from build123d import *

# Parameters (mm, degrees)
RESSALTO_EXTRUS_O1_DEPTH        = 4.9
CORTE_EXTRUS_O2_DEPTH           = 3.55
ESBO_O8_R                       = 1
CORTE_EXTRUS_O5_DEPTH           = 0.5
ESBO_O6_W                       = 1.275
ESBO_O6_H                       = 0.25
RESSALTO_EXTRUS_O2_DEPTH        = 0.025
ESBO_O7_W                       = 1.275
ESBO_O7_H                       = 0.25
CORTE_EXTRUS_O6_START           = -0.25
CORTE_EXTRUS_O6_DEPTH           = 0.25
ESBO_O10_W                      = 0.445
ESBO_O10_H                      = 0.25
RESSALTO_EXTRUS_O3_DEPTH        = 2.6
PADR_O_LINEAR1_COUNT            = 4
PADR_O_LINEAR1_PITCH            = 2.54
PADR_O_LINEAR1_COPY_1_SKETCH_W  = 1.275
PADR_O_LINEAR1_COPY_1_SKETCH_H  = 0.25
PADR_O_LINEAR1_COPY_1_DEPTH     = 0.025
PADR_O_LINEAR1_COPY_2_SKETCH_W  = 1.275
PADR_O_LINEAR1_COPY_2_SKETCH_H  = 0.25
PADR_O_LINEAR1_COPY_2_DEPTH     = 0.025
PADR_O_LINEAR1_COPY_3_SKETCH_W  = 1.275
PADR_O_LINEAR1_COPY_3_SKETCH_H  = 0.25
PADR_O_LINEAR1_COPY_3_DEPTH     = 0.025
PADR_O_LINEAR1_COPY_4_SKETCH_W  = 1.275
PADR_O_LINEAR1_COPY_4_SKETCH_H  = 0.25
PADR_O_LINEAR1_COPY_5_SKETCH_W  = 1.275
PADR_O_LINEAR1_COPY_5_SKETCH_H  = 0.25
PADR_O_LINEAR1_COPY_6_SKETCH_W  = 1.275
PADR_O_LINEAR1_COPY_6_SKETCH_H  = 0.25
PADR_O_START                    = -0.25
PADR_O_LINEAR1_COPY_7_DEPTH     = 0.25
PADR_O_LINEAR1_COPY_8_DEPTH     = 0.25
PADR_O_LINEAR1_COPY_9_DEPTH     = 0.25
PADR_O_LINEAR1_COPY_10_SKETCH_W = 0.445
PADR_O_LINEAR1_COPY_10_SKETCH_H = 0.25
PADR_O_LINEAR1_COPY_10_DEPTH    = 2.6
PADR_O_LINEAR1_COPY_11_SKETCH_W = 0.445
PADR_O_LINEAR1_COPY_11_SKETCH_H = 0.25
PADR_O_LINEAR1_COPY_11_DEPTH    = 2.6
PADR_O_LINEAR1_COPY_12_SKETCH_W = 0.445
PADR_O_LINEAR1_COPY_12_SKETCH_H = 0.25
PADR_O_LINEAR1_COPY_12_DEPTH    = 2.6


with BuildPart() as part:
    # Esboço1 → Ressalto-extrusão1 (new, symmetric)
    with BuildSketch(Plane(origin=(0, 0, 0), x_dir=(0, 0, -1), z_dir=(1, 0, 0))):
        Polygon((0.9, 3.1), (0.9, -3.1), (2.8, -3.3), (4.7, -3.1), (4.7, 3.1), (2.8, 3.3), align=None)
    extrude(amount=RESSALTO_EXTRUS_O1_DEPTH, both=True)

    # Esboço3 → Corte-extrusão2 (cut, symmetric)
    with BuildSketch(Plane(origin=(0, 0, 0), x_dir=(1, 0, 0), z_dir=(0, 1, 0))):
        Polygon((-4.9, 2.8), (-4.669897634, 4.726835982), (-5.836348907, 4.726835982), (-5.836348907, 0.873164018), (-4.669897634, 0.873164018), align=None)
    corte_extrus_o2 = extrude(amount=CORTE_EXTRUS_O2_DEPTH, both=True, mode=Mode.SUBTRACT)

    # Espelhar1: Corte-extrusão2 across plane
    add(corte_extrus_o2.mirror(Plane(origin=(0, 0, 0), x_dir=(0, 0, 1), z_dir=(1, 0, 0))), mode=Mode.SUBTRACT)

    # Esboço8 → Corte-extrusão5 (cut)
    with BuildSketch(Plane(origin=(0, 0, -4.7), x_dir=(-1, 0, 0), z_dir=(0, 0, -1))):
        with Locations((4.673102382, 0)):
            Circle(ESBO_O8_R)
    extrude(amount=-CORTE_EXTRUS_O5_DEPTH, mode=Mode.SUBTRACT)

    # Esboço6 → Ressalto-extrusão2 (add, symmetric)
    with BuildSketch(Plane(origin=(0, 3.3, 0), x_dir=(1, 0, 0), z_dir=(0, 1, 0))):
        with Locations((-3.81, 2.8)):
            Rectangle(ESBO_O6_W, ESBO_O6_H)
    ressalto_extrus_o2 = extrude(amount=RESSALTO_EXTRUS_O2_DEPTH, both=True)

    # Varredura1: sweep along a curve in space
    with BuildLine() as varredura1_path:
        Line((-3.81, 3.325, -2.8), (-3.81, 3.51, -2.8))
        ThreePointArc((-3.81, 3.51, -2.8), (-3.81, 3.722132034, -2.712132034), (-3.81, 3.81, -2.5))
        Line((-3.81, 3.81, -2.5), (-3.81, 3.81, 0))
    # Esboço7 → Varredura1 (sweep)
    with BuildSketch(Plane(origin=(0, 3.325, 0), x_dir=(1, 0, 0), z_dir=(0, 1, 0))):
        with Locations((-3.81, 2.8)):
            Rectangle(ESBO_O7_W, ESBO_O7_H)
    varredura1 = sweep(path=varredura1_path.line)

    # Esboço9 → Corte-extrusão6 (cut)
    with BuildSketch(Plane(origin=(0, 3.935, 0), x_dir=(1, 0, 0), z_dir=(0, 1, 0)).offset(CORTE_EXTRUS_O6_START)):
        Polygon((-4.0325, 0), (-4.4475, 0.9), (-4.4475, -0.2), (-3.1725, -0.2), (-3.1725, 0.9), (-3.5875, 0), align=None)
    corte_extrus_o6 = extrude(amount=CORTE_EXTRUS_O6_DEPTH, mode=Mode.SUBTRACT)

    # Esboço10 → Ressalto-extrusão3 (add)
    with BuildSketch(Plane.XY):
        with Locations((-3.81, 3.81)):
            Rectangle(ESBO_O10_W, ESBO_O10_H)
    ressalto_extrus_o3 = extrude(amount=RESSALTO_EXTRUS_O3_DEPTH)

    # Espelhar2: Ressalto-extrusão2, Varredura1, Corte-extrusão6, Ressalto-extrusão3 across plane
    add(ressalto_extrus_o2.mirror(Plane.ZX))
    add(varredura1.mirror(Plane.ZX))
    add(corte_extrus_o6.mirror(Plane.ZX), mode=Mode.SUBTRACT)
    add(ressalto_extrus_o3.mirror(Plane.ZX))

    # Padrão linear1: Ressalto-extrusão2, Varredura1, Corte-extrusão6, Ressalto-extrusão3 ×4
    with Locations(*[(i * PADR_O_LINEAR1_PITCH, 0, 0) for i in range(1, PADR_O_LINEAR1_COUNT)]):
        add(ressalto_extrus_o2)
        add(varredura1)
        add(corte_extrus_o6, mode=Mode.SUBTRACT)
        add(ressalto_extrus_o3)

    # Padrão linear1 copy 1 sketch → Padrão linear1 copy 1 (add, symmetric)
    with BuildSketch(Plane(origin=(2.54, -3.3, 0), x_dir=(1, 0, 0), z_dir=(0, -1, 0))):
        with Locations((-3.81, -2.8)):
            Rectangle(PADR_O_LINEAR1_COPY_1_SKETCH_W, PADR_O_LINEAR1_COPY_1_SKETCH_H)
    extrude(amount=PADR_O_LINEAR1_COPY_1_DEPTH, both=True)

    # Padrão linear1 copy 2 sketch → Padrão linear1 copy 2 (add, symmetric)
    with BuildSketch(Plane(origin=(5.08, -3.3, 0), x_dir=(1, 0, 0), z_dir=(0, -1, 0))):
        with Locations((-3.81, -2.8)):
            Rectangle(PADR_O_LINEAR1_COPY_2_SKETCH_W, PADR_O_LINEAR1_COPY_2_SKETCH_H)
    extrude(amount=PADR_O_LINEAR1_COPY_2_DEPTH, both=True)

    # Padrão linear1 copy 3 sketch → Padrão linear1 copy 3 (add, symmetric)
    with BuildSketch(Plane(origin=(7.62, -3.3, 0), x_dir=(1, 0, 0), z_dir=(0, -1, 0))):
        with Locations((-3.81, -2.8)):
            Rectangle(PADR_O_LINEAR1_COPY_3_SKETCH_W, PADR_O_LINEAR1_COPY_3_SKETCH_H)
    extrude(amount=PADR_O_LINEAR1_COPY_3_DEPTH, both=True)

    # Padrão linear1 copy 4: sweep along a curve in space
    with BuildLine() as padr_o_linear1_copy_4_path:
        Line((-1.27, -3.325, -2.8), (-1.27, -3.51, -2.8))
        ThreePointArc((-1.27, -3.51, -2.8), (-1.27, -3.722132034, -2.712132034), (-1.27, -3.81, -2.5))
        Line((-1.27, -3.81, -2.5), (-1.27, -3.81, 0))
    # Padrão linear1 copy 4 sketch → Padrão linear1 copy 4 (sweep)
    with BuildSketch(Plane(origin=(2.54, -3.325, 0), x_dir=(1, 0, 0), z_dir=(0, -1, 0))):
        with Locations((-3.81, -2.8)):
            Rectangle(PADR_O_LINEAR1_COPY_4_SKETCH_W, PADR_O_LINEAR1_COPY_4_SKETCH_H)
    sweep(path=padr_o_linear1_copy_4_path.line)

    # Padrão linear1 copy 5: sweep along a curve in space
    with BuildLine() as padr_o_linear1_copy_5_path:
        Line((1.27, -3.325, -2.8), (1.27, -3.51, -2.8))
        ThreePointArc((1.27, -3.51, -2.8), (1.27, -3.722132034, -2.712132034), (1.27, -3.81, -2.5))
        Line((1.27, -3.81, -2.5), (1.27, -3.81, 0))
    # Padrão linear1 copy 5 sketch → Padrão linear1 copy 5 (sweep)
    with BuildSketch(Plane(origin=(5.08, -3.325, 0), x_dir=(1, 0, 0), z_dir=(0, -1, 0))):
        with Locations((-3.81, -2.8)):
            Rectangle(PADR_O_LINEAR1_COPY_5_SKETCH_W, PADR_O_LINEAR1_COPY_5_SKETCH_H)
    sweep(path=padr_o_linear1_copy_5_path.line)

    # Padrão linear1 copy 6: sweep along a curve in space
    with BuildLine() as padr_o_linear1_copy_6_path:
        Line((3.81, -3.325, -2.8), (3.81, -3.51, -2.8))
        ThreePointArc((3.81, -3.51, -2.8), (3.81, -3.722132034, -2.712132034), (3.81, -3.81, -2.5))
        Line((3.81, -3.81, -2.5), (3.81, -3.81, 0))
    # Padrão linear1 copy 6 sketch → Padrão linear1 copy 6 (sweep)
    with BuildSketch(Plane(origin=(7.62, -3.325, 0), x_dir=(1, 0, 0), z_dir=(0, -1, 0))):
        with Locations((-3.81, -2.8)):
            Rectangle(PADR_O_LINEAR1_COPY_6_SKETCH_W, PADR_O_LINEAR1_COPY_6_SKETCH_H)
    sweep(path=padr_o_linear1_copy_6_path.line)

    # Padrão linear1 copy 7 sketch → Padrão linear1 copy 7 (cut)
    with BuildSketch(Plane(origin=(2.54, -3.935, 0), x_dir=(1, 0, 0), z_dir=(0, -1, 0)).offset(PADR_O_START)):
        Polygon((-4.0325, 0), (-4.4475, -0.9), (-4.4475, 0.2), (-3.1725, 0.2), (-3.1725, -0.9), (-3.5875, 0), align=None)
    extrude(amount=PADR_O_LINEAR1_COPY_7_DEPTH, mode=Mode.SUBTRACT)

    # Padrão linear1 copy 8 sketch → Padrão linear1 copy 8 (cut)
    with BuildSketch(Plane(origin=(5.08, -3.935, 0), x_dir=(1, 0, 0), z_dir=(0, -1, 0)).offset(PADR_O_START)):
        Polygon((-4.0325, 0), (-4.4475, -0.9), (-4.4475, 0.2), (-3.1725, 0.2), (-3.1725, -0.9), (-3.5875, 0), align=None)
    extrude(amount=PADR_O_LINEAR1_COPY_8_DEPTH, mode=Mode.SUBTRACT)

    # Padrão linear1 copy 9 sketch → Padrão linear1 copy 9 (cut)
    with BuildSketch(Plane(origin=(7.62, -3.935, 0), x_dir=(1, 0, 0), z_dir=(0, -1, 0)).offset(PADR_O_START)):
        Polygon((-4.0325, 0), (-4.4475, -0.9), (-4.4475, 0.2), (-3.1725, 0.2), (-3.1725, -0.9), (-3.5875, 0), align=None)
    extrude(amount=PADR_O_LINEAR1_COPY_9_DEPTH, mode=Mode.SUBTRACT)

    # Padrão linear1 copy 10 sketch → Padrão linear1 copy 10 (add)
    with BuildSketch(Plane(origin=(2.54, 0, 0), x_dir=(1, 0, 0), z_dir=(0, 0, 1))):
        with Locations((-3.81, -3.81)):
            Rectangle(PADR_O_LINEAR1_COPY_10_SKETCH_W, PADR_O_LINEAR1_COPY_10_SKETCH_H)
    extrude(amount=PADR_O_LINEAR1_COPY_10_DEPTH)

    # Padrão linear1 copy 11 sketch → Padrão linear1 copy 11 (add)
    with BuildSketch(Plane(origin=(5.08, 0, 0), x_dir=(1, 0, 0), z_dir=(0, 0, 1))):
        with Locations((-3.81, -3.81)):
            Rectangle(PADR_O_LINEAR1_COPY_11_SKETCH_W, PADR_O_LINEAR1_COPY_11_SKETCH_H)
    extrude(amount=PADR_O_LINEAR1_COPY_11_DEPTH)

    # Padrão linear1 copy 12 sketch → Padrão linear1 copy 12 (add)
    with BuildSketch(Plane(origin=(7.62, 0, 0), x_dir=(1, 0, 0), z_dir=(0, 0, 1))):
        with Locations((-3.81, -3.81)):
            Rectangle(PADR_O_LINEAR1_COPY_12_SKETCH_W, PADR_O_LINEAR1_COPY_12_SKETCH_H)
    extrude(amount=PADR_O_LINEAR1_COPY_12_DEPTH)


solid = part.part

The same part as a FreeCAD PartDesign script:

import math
import FreeCAD as App
import Part
import Sketcher

V = App.Vector
Q = App.Units.Quantity


def add_polygon(sketch, points):
    """Adds a closed chain of lines whose ends are joined by coincident constraints."""
    first, n = sketch.GeometryCount, len(points)
    for a, b in zip(points, points[1:] + points[:1]):
        sketch.addGeometry(Part.LineSegment(App.Vector(*a, 0), App.Vector(*b, 0)), False)
    for i in range(n):
        sketch.addConstraint(Sketcher.Constraint("Coincident", first + i, 2, first + (i + 1) % n, 1))

doc = App.newDocument("Part")
body = doc.addObject("PartDesign::Body", "Body")

sketch1 = body.newObject("Sketcher::SketchObject", "Sketch")
sketch1.AttachmentSupport = (doc.getObject("YZ_Plane"), [""])
sketch1.MapMode = "FlatFace"
add_polygon(sketch1, [(3.1, -0.9), (-3.1, -0.9), (-3.3, -2.8), (-3.1, -4.7), (3.1, -4.7), (3.3, -2.8)])
sketch1.addConstraint(Sketcher.Constraint("Horizontal", 0))
sketch1.addConstraint(Sketcher.Constraint("Horizontal", 3))
sketch1.addConstraint(Sketcher.Constraint("Symmetric", 1, 2, 4, 2, -2))
sketch1.addConstraint(Sketcher.Constraint("Parallel", 1, 4))
sketch1.addConstraint(Sketcher.Constraint("Parallel", 2, 5))
sketch1.addConstraint(Sketcher.Constraint("Vertical", 0, 2, 2, 2))
sketch1.addConstraint(Sketcher.Constraint("Vertical", 3, 2, 5, 2))
sketch1.addConstraint(Sketcher.Constraint("DistanceX", 0, 2, 0, 1, 6.2))
sketch1.addConstraint(Sketcher.Constraint("DistanceY", 0, 2, -1, 1, 0.9))
sketch1.addConstraint(Sketcher.Constraint("DistanceX", 1, 2, -1, 1, 3.3))
sketch1.addConstraint(Sketcher.Constraint("DistanceY", 1, 2, -1, 1, 2.8))
pad1 = body.newObject("PartDesign::Pad", "Pad")
pad1.Profile = sketch1
pad1.Length = 9.8
pad1.Midplane = True

sketch2 = body.newObject("Sketcher::SketchObject", "Sketch001")
sketch2.AttachmentSupport = (doc.getObject("XZ_Plane"), [""])
sketch2.MapMode = "FlatFace"
add_polygon(sketch2, [(-4.9, -2.8), (-4.7, -4.7), (-5.8, -4.7), (-5.8, -0.9), (-4.7, -0.9)])
sketch2.addConstraint(Sketcher.Constraint("Horizontal", 1))
sketch2.addConstraint(Sketcher.Constraint("Vertical", 2))
sketch2.addConstraint(Sketcher.Constraint("Horizontal", 3))
sketch2.addConstraint(Sketcher.Constraint("Vertical", 0, 2, 3, 2))
sketch2.addConstraint(Sketcher.Constraint("Equal", 0, 4))
sketch2.addConstraint(Sketcher.Constraint("DistanceX", 4, 2, -1, 1, 4.9))
sketch2.addConstraint(Sketcher.Constraint("DistanceY", 4, 2, -1, 1, 2.8))
sketch2.addConstraint(Sketcher.Constraint("Angle", 0, Q("-83.19 deg")))
sketch2.addConstraint(Sketcher.Constraint("DistanceX", 1, 2, 1, 1, 1.166451))
sketch2.addConstraint(Sketcher.Constraint("DistanceY", 2, 1, 2, 2, 3.853672))
pocket1 = body.newObject("PartDesign::Pocket", "Pocket")
pocket1.Profile = sketch2
pocket1.Length = 7.1
pocket1.Midplane = True
doc.recompute()

mirrored = body.newObject("PartDesign::Mirrored", "Mirrored")
mirrored.Originals = [pocket1]
mirrored.MirrorPlane = (doc.getObject("YZ_Plane"), [""])
body.Tip = mirrored

sketch3 = body.newObject("Sketcher::SketchObject", "Sketch002")
sketch3.AttachmentSupport = (doc.getObject("XY_Plane"), [""])
sketch3.MapMode = "FlatFace"
sketch3.AttachmentOffset = App.Placement(V(0, 0, -4.7), App.Rotation())
sketch3.addGeometry(Part.Circle(V(-4.7, 0, 0), V(0, 0, 1), 1), False)
sketch3.addConstraint(Sketcher.Constraint("PointOnObject", 0, 3, -1))
sketch3.addConstraint(Sketcher.Constraint("Diameter", 0, 2.0))
sketch3.addConstraint(Sketcher.Constraint("DistanceX", 0, 3, -1, 1, 4.673102))
pocket2 = body.newObject("PartDesign::Pocket", "Pocket001")
pocket2.Profile = sketch3
pocket2.Length = 0.5
pocket2.Reversed = True

sketch4 = body.newObject("Sketcher::SketchObject", "Sketch003")
sketch4.AttachmentSupport = (doc.getObject("XZ_Plane"), [""])
sketch4.MapMode = "FlatFace"
sketch4.AttachmentOffset = App.Placement(V(0, 0, -3.3), App.Rotation())
add_polygon(sketch4, [(-4.45, -2.92), (-4.45, -2.67), (-3.17, -2.67), (-3.17, -2.92)])
sketch4.addConstraint(Sketcher.Constraint("Vertical", 0))
sketch4.addConstraint(Sketcher.Constraint("Horizontal", 1))
sketch4.addConstraint(Sketcher.Constraint("Vertical", 2))
sketch4.addConstraint(Sketcher.Constraint("Horizontal", 3))
sketch4.addConstraint(Sketcher.Constraint("DistanceY", 0, 1, 0, 2, 0.25))
sketch4.addConstraint(Sketcher.Constraint("DistanceX", 1, 1, 1, 2, 1.275))
sketch4.addConstraint(Sketcher.Constraint("DistanceY", 0, 2, -1, 1, 2.675))
sketch4.addConstraint(Sketcher.Constraint("DistanceX", 0, 2, -1, 1, 4.4475))
pad2 = body.newObject("PartDesign::Pad", "Pad001")
pad2.Profile = sketch4
pad2.Length = 0.05
pad2.Midplane = True

sketch5 = body.newObject("Sketcher::SketchObject", "Sketch004")
sketch5.AttachmentSupport = (doc.getObject("XZ_Plane"), [""])
sketch5.MapMode = "FlatFace"
sketch5.AttachmentOffset = App.Placement(V(0, 0, -3.325), App.Rotation())
add_polygon(sketch5, [(-4.45, -2.92), (-4.45, -2.67), (-3.17, -2.67), (-3.17, -2.92)])
sketch5.addConstraint(Sketcher.Constraint("Vertical", 0))
sketch5.addConstraint(Sketcher.Constraint("Horizontal", 1))
sketch5.addConstraint(Sketcher.Constraint("Vertical", 2))
sketch5.addConstraint(Sketcher.Constraint("Horizontal", 3))
sketch5.addConstraint(Sketcher.Constraint("DistanceY", 0, 1, 0, 2, 0.25))
sketch5.addConstraint(Sketcher.Constraint("DistanceX", 1, 1, 1, 2, 1.275))
sketch5.addConstraint(Sketcher.Constraint("DistanceY", 0, 2, -1, 1, 2.675))
sketch5.addConstraint(Sketcher.Constraint("DistanceX", 0, 2, -1, 1, 4.4475))

sketch6 = body.newObject("Sketcher::SketchObject", "Sketch005")
sketch6.AttachmentSupport = (doc.getObject("YZ_Plane"), [""])
sketch6.MapMode = "FlatFace"
sketch6.AttachmentOffset = App.Placement(V(0, 0, -3.81), App.Rotation())
sketch6.addGeometry(Part.LineSegment(V(3.33, -2.8, 0), V(3.51, -2.8, 0)), False)
sketch6.addGeometry(Part.ArcOfCircle(Part.Circle(V(3.51, -2.5, 0), V(0, 0, 1), 0.3), math.radians(-90), math.radians(0)), False)
sketch6.addGeometry(Part.LineSegment(V(3.81, -2.5, 0), V(3.81, 0, 0)), False)
sketch6.addConstraint(Sketcher.Constraint("Tangent", 0, 2, 1, 1))
sketch6.addConstraint(Sketcher.Constraint("Tangent", 1, 2, 2, 1))
sketch6.addConstraint(Sketcher.Constraint("Horizontal", 0))
sketch6.addConstraint(Sketcher.Constraint("Vertical", 2))
sketch6.addConstraint(Sketcher.Constraint("PointOnObject", 2, 2, -1))
sketch6.addConstraint(Sketcher.Constraint("Radius", 1, 0.3))
sketch6.addConstraint(Sketcher.Constraint("DistanceY", 2, 1, 2, 2, 2.5))
sketch6.addConstraint(Sketcher.Constraint("DistanceX", 0, 1, 0, 2, 0.185))
sketch6.addConstraint(Sketcher.Constraint("DistanceX", -1, 1, 1, 3, 3.51))
doc.recompute()

additivepipe = body.newObject("PartDesign::AdditivePipe", "AdditivePipe")
additivepipe.Profile = sketch5
additivepipe.Spine = (sketch6, ["Edge1", "Edge2", "Edge3"])

sketch7 = body.newObject("Sketcher::SketchObject", "Sketch006")
sketch7.AttachmentSupport = (doc.getObject("XZ_Plane"), [""])
sketch7.MapMode = "FlatFace"
sketch7.AttachmentOffset = App.Placement(V(0, 0, -3.685), App.Rotation())
add_polygon(sketch7, [(-4.03, 0), (-4.45, -0.9), (-4.45, 0.2), (-3.17, 0.2), (-3.17, -0.9), (-3.59, 0)])
sketch7.addConstraint(Sketcher.Constraint("Vertical", 1))
sketch7.addConstraint(Sketcher.Constraint("Horizontal", 2))
sketch7.addConstraint(Sketcher.Constraint("Vertical", 3))
sketch7.addConstraint(Sketcher.Constraint("Horizontal", 5))
sketch7.addConstraint(Sketcher.Constraint("PointOnObject", 4, 2, -1))
sketch7.addConstraint(Sketcher.Constraint("Horizontal", 0, 2, 3, 2))
sketch7.addConstraint(Sketcher.Constraint("Equal", 0, 4))
sketch7.addConstraint(Sketcher.Constraint("DistanceY", 1, 1, 1, 2, 1.1))
sketch7.addConstraint(Sketcher.Constraint("DistanceY", 0, 2, -1, 1, 0.9))
sketch7.addConstraint(Sketcher.Constraint("DistanceX", 2, 1, 2, 2, 1.275))
sketch7.addConstraint(Sketcher.Constraint("DistanceX", 5, 2, 5, 1, 0.445))
sketch7.addConstraint(Sketcher.Constraint("DistanceX", 0, 2, -1, 1, 4.4475))
pocket3 = body.newObject("PartDesign::Pocket", "Pocket002")
pocket3.Profile = sketch7
pocket3.Length = 0.25

sketch8 = body.newObject("Sketcher::SketchObject", "Sketch007")
sketch8.AttachmentSupport = (doc.getObject("XY_Plane"), [""])
sketch8.MapMode = "FlatFace"
add_polygon(sketch8, [(-4.03, 3.94), (-4.03, 3.69), (-3.59, 3.69), (-3.59, 3.94)])
sketch8.addConstraint(Sketcher.Constraint("Vertical", 0))
sketch8.addConstraint(Sketcher.Constraint("Horizontal", 1))
sketch8.addConstraint(Sketcher.Constraint("Vertical", 2))
sketch8.addConstraint(Sketcher.Constraint("Horizontal", 3))
sketch8.addConstraint(Sketcher.Constraint("DistanceY", 0, 2, 0, 1, 0.25))
sketch8.addConstraint(Sketcher.Constraint("DistanceX", 1, 1, 1, 2, 0.445))
sketch8.addConstraint(Sketcher.Constraint("DistanceY", -1, 1, 0, 2, 3.685))
sketch8.addConstraint(Sketcher.Constraint("DistanceX", 0, 2, -1, 1, 4.0325))
pad3 = body.newObject("PartDesign::Pad", "Pad002")
pad3.Profile = sketch8
pad3.Length = 2.6
doc.recompute()

mirrored2 = body.newObject("PartDesign::Mirrored", "Mirrored001")
mirrored2.Originals = [pad2, additivepipe, pocket3, pad3]
mirrored2.MirrorPlane = (doc.getObject("XZ_Plane"), [""])
body.Tip = mirrored2
doc.recompute()

linearpattern = body.newObject("PartDesign::LinearPattern", "LinearPattern")
linearpattern.Originals = [pad2, additivepipe, pocket3, pad3]
linearpattern.Direction = (doc.getObject("X_Axis"), [""])
linearpattern.Mode = "offset"
linearpattern.Offset = 2.54
linearpattern.Occurrences = 4
body.Tip = linearpattern

sketch9 = body.newObject("Sketcher::SketchObject", "Sketch008")
sketch9.AttachmentSupport = (doc.getObject("XZ_Plane"), [""])
sketch9.MapMode = "FlatFace"
sketch9.AttachmentOffset = App.Placement(V(0, 0, 3.3), App.Rotation())
add_polygon(sketch9, [(-1.91, -2.67), (-1.91, -2.92), (-0.63, -2.92), (-0.63, -2.67)])
sketch9.addConstraint(Sketcher.Constraint("Vertical", 0))
sketch9.addConstraint(Sketcher.Constraint("Horizontal", 1))
sketch9.addConstraint(Sketcher.Constraint("Vertical", 2))
sketch9.addConstraint(Sketcher.Constraint("Horizontal", 3))
sketch9.addConstraint(Sketcher.Constraint("DistanceY", 0, 2, 0, 1, 0.25))
sketch9.addConstraint(Sketcher.Constraint("DistanceX", 1, 1, 1, 2, 1.275))
sketch9.addConstraint(Sketcher.Constraint("DistanceY", 0, 2, -1, 1, 2.925))
sketch9.addConstraint(Sketcher.Constraint("DistanceX", 0, 2, -1, 1, 1.9075))
pad4 = body.newObject("PartDesign::Pad", "Pad003")
pad4.Profile = sketch9
pad4.Length = 0.05
pad4.Midplane = True

sketch10 = body.newObject("Sketcher::SketchObject", "Sketch009")
sketch10.AttachmentSupport = (doc.getObject("XZ_Plane"), [""])
sketch10.MapMode = "FlatFace"
sketch10.AttachmentOffset = App.Placement(V(0, 0, 3.3), App.Rotation())
add_polygon(sketch10, [(0.63, -2.67), (0.63, -2.92), (1.91, -2.92), (1.91, -2.67)])
sketch10.addConstraint(Sketcher.Constraint("Vertical", 0))
sketch10.addConstraint(Sketcher.Constraint("Horizontal", 1))
sketch10.addConstraint(Sketcher.Constraint("Vertical", 2))
sketch10.addConstraint(Sketcher.Constraint("Horizontal", 3))
sketch10.addConstraint(Sketcher.Constraint("DistanceY", 0, 2, 0, 1, 0.25))
sketch10.addConstraint(Sketcher.Constraint("DistanceX", 1, 1, 1, 2, 1.275))
sketch10.addConstraint(Sketcher.Constraint("DistanceY", 0, 2, -1, 1, 2.925))
sketch10.addConstraint(Sketcher.Constraint("DistanceX", -1, 1, 0, 2, 0.6325))
pad5 = body.newObject("PartDesign::Pad", "Pad004")
pad5.Profile = sketch10
pad5.Length = 0.05
pad5.Midplane = True

sketch11 = body.newObject("Sketcher::SketchObject", "Sketch010")
sketch11.AttachmentSupport = (doc.getObject("XZ_Plane"), [""])
sketch11.MapMode = "FlatFace"
sketch11.AttachmentOffset = App.Placement(V(0, 0, 3.3), App.Rotation())
add_polygon(sketch11, [(3.17, -2.67), (3.17, -2.92), (4.45, -2.92), (4.45, -2.67)])
sketch11.addConstraint(Sketcher.Constraint("Vertical", 0))
sketch11.addConstraint(Sketcher.Constraint("Horizontal", 1))
sketch11.addConstraint(Sketcher.Constraint("Vertical", 2))
sketch11.addConstraint(Sketcher.Constraint("Horizontal", 3))
sketch11.addConstraint(Sketcher.Constraint("DistanceY", 0, 2, 0, 1, 0.25))
sketch11.addConstraint(Sketcher.Constraint("DistanceX", 1, 1, 1, 2, 1.275))
sketch11.addConstraint(Sketcher.Constraint("DistanceY", 0, 2, -1, 1, 2.925))
sketch11.addConstraint(Sketcher.Constraint("DistanceX", -1, 1, 0, 2, 3.1725))
pad6 = body.newObject("PartDesign::Pad", "Pad005")
pad6.Profile = sketch11
pad6.Length = 0.05
pad6.Midplane = True

sketch12 = body.newObject("Sketcher::SketchObject", "Sketch011")
sketch12.AttachmentSupport = (doc.getObject("XZ_Plane"), [""])
sketch12.MapMode = "FlatFace"
sketch12.AttachmentOffset = App.Placement(V(0, 0, 3.325), App.Rotation())
add_polygon(sketch12, [(-1.91, -2.67), (-1.91, -2.92), (-0.63, -2.92), (-0.63, -2.67)])
sketch12.addConstraint(Sketcher.Constraint("Vertical", 0))
sketch12.addConstraint(Sketcher.Constraint("Horizontal", 1))
sketch12.addConstraint(Sketcher.Constraint("Vertical", 2))
sketch12.addConstraint(Sketcher.Constraint("Horizontal", 3))
sketch12.addConstraint(Sketcher.Constraint("DistanceY", 0, 2, 0, 1, 0.25))
sketch12.addConstraint(Sketcher.Constraint("DistanceX", 1, 1, 1, 2, 1.275))
sketch12.addConstraint(Sketcher.Constraint("DistanceY", 0, 2, -1, 1, 2.925))
sketch12.addConstraint(Sketcher.Constraint("DistanceX", 0, 2, -1, 1, 1.9075))

sketch13 = body.newObject("Sketcher::SketchObject", "Sketch012")
sketch13.AttachmentSupport = (doc.getObject("YZ_Plane"), [""])
sketch13.MapMode = "FlatFace"
sketch13.AttachmentOffset = App.Placement(V(0, 0, -1.27), App.Rotation())
sketch13.addGeometry(Part.LineSegment(V(-3.33, -2.8, 0), V(-3.51, -2.8, 0)), False)
sketch13.addGeometry(Part.ArcOfCircle(Part.Circle(V(-3.51, -2.5, 0), V(0, 0, 1), 0.3), math.radians(-180), math.radians(-90)), False)
sketch13.addGeometry(Part.LineSegment(V(-3.81, -2.5, 0), V(-3.81, 0, 0)), False)
sketch13.addConstraint(Sketcher.Constraint("Tangent", 0, 2, 1, 2))
sketch13.addConstraint(Sketcher.Constraint("Tangent", 1, 1, 2, 1))
sketch13.addConstraint(Sketcher.Constraint("Horizontal", 0))
sketch13.addConstraint(Sketcher.Constraint("Vertical", 2))
sketch13.addConstraint(Sketcher.Constraint("PointOnObject", 2, 2, -1))
sketch13.addConstraint(Sketcher.Constraint("Radius", 1, 0.3))
sketch13.addConstraint(Sketcher.Constraint("DistanceY", 2, 1, 2, 2, 2.5))
sketch13.addConstraint(Sketcher.Constraint("DistanceX", 0, 2, 0, 1, 0.185))
sketch13.addConstraint(Sketcher.Constraint("DistanceX", 1, 3, -1, 1, 3.51))
doc.recompute()

additivepipe2 = body.newObject("PartDesign::AdditivePipe", "AdditivePipe001")
additivepipe2.Profile = sketch12
additivepipe2.Spine = (sketch13, ["Edge1", "Edge2", "Edge3"])

sketch14 = body.newObject("Sketcher::SketchObject", "Sketch013")
sketch14.AttachmentSupport = (doc.getObject("XZ_Plane"), [""])
sketch14.MapMode = "FlatFace"
sketch14.AttachmentOffset = App.Placement(V(0, 0, 3.325), App.Rotation())
add_polygon(sketch14, [(0.63, -2.67), (0.63, -2.92), (1.91, -2.92), (1.91, -2.67)])
sketch14.addConstraint(Sketcher.Constraint("Vertical", 0))
sketch14.addConstraint(Sketcher.Constraint("Horizontal", 1))
sketch14.addConstraint(Sketcher.Constraint("Vertical", 2))
sketch14.addConstraint(Sketcher.Constraint("Horizontal", 3))
sketch14.addConstraint(Sketcher.Constraint("DistanceY", 0, 2, 0, 1, 0.25))
sketch14.addConstraint(Sketcher.Constraint("DistanceX", 1, 1, 1, 2, 1.275))
sketch14.addConstraint(Sketcher.Constraint("DistanceY", 0, 2, -1, 1, 2.925))
sketch14.addConstraint(Sketcher.Constraint("DistanceX", -1, 1, 0, 2, 0.6325))

sketch15 = body.newObject("Sketcher::SketchObject", "Sketch014")
sketch15.AttachmentSupport = (doc.getObject("YZ_Plane"), [""])
sketch15.MapMode = "FlatFace"
sketch15.AttachmentOffset = App.Placement(V(0, 0, 1.27), App.Rotation())
sketch15.addGeometry(Part.LineSegment(V(-3.33, -2.8, 0), V(-3.51, -2.8, 0)), False)
sketch15.addGeometry(Part.ArcOfCircle(Part.Circle(V(-3.51, -2.5, 0), V(0, 0, 1), 0.3), math.radians(-180), math.radians(-90)), False)
sketch15.addGeometry(Part.LineSegment(V(-3.81, -2.5, 0), V(-3.81, 0, 0)), False)
sketch15.addConstraint(Sketcher.Constraint("Tangent", 0, 2, 1, 2))
sketch15.addConstraint(Sketcher.Constraint("Tangent", 1, 1, 2, 1))
sketch15.addConstraint(Sketcher.Constraint("Horizontal", 0))
sketch15.addConstraint(Sketcher.Constraint("Vertical", 2))
sketch15.addConstraint(Sketcher.Constraint("PointOnObject", 2, 2, -1))
sketch15.addConstraint(Sketcher.Constraint("Radius", 1, 0.3))
sketch15.addConstraint(Sketcher.Constraint("DistanceY", 2, 1, 2, 2, 2.5))
sketch15.addConstraint(Sketcher.Constraint("DistanceX", 0, 2, 0, 1, 0.185))
sketch15.addConstraint(Sketcher.Constraint("DistanceX", 1, 3, -1, 1, 3.51))
doc.recompute()

additivepipe3 = body.newObject("PartDesign::AdditivePipe", "AdditivePipe002")
additivepipe3.Profile = sketch14
additivepipe3.Spine = (sketch15, ["Edge1", "Edge2", "Edge3"])

sketch16 = body.newObject("Sketcher::SketchObject", "Sketch015")
sketch16.AttachmentSupport = (doc.getObject("XZ_Plane"), [""])
sketch16.MapMode = "FlatFace"
sketch16.AttachmentOffset = App.Placement(V(0, 0, 3.325), App.Rotation())
add_polygon(sketch16, [(3.17, -2.67), (3.17, -2.92), (4.45, -2.92), (4.45, -2.67)])
sketch16.addConstraint(Sketcher.Constraint("Vertical", 0))
sketch16.addConstraint(Sketcher.Constraint("Horizontal", 1))
sketch16.addConstraint(Sketcher.Constraint("Vertical", 2))
sketch16.addConstraint(Sketcher.Constraint("Horizontal", 3))
sketch16.addConstraint(Sketcher.Constraint("DistanceY", 0, 2, 0, 1, 0.25))
sketch16.addConstraint(Sketcher.Constraint("DistanceX", 1, 1, 1, 2, 1.275))
sketch16.addConstraint(Sketcher.Constraint("DistanceY", 0, 2, -1, 1, 2.925))
sketch16.addConstraint(Sketcher.Constraint("DistanceX", -1, 1, 0, 2, 3.1725))

sketch17 = body.newObject("Sketcher::SketchObject", "Sketch016")
sketch17.AttachmentSupport = (doc.getObject("YZ_Plane"), [""])
sketch17.MapMode = "FlatFace"
sketch17.AttachmentOffset = App.Placement(V(0, 0, 3.81), App.Rotation())
sketch17.addGeometry(Part.LineSegment(V(-3.33, -2.8, 0), V(-3.51, -2.8, 0)), False)
sketch17.addGeometry(Part.ArcOfCircle(Part.Circle(V(-3.51, -2.5, 0), V(0, 0, 1), 0.3), math.radians(-180), math.radians(-90)), False)
sketch17.addGeometry(Part.LineSegment(V(-3.81, -2.5, 0), V(-3.81, 0, 0)), False)
sketch17.addConstraint(Sketcher.Constraint("Tangent", 0, 2, 1, 2))
sketch17.addConstraint(Sketcher.Constraint("Tangent", 1, 1, 2, 1))
sketch17.addConstraint(Sketcher.Constraint("Horizontal", 0))
sketch17.addConstraint(Sketcher.Constraint("Vertical", 2))
sketch17.addConstraint(Sketcher.Constraint("PointOnObject", 2, 2, -1))
sketch17.addConstraint(Sketcher.Constraint("Radius", 1, 0.3))
sketch17.addConstraint(Sketcher.Constraint("DistanceY", 2, 1, 2, 2, 2.5))
sketch17.addConstraint(Sketcher.Constraint("DistanceX", 0, 2, 0, 1, 0.185))
sketch17.addConstraint(Sketcher.Constraint("DistanceX", 1, 3, -1, 1, 3.51))
doc.recompute()

additivepipe4 = body.newObject("PartDesign::AdditivePipe", "AdditivePipe003")
additivepipe4.Profile = sketch16
additivepipe4.Spine = (sketch17, ["Edge1", "Edge2", "Edge3"])

sketch18 = body.newObject("Sketcher::SketchObject", "Sketch017")
sketch18.AttachmentSupport = (doc.getObject("XZ_Plane"), [""])
sketch18.MapMode = "FlatFace"
sketch18.AttachmentOffset = App.Placement(V(0, 0, 3.685), App.Rotation())
add_polygon(sketch18, [(-1.91, -0.9), (-1.49, 0), (-1.05, 0), (-0.63, -0.9), (-0.63, 0.2), (-1.91, 0.2)])
sketch18.addConstraint(Sketcher.Constraint("Horizontal", 1))
sketch18.addConstraint(Sketcher.Constraint("Vertical", 3))
sketch18.addConstraint(Sketcher.Constraint("Horizontal", 4))
sketch18.addConstraint(Sketcher.Constraint("Vertical", 5))
sketch18.addConstraint(Sketcher.Constraint("PointOnObject", 0, 2, -1))
sketch18.addConstraint(Sketcher.Constraint("Horizontal", 2, 2, 5, 2))
sketch18.addConstraint(Sketcher.Constraint("Equal", 0, 2))
sketch18.addConstraint(Sketcher.Constraint("DistanceY", 3, 1, 3, 2, 1.1))
sketch18.addConstraint(Sketcher.Constraint("DistanceY", 2, 2, -1, 1, 0.9))
sketch18.addConstraint(Sketcher.Constraint("DistanceX", 1, 1, 1, 2, 0.445))
sketch18.addConstraint(Sketcher.Constraint("DistanceX", 4, 2, 4, 1, 1.275))
sketch18.addConstraint(Sketcher.Constraint("DistanceX", 0, 2, -1, 1, 1.4925))
pocket4 = body.newObject("PartDesign::Pocket", "Pocket003")
pocket4.Profile = sketch18
pocket4.Length = 0.25
pocket4.Reversed = True

sketch19 = body.newObject("Sketcher::SketchObject", "Sketch018")
sketch19.AttachmentSupport = (doc.getObject("XZ_Plane"), [""])
sketch19.MapMode = "FlatFace"
sketch19.AttachmentOffset = App.Placement(V(0, 0, 3.685), App.Rotation())
add_polygon(sketch19, [(0.63, -0.9), (1.05, 0), (1.49, 0), (1.91, -0.9), (1.91, 0.2), (0.63, 0.2)])
sketch19.addConstraint(Sketcher.Constraint("Horizontal", 1))
sketch19.addConstraint(Sketcher.Constraint("Vertical", 3))
sketch19.addConstraint(Sketcher.Constraint("Horizontal", 4))
sketch19.addConstraint(Sketcher.Constraint("Vertical", 5))
sketch19.addConstraint(Sketcher.Constraint("PointOnObject", 0, 2, -1))
sketch19.addConstraint(Sketcher.Constraint("Horizontal", 2, 2, 5, 2))
sketch19.addConstraint(Sketcher.Constraint("Equal", 0, 2))
sketch19.addConstraint(Sketcher.Constraint("DistanceY", 3, 1, 3, 2, 1.1))
sketch19.addConstraint(Sketcher.Constraint("DistanceY", 2, 2, -1, 1, 0.9))
sketch19.addConstraint(Sketcher.Constraint("DistanceX", 1, 1, 1, 2, 0.445))
sketch19.addConstraint(Sketcher.Constraint("DistanceX", 4, 2, 4, 1, 1.275))
sketch19.addConstraint(Sketcher.Constraint("DistanceX", -1, 1, 0, 2, 1.0475))
pocket5 = body.newObject("PartDesign::Pocket", "Pocket004")
pocket5.Profile = sketch19
pocket5.Length = 0.25
pocket5.Reversed = True

sketch20 = body.newObject("Sketcher::SketchObject", "Sketch019")
sketch20.AttachmentSupport = (doc.getObject("XZ_Plane"), [""])
sketch20.MapMode = "FlatFace"
sketch20.AttachmentOffset = App.Placement(V(0, 0, 3.685), App.Rotation())
add_polygon(sketch20, [(3.17, -0.9), (3.59, 0), (4.03, 0), (4.45, -0.9), (4.45, 0.2), (3.17, 0.2)])
sketch20.addConstraint(Sketcher.Constraint("Horizontal", 1))
sketch20.addConstraint(Sketcher.Constraint("Vertical", 3))
sketch20.addConstraint(Sketcher.Constraint("Horizontal", 4))
sketch20.addConstraint(Sketcher.Constraint("Vertical", 5))
sketch20.addConstraint(Sketcher.Constraint("PointOnObject", 0, 2, -1))
sketch20.addConstraint(Sketcher.Constraint("Horizontal", 2, 2, 5, 2))
sketch20.addConstraint(Sketcher.Constraint("Equal", 0, 2))
sketch20.addConstraint(Sketcher.Constraint("DistanceY", 3, 1, 3, 2, 1.1))
sketch20.addConstraint(Sketcher.Constraint("DistanceY", 2, 2, -1, 1, 0.9))
sketch20.addConstraint(Sketcher.Constraint("DistanceX", 1, 1, 1, 2, 0.445))
sketch20.addConstraint(Sketcher.Constraint("DistanceX", 4, 2, 4, 1, 1.275))
sketch20.addConstraint(Sketcher.Constraint("DistanceX", -1, 1, 0, 2, 3.5875))
pocket6 = body.newObject("PartDesign::Pocket", "Pocket005")
pocket6.Profile = sketch20
pocket6.Length = 0.25
pocket6.Reversed = True

sketch21 = body.newObject("Sketcher::SketchObject", "Sketch020")
sketch21.AttachmentSupport = (doc.getObject("XY_Plane"), [""])
sketch21.MapMode = "FlatFace"
add_polygon(sketch21, [(-1.49, -3.69), (-1.49, -3.94), (-1.05, -3.94), (-1.05, -3.69)])
sketch21.addConstraint(Sketcher.Constraint("Vertical", 0))
sketch21.addConstraint(Sketcher.Constraint("Horizontal", 1))
sketch21.addConstraint(Sketcher.Constraint("Vertical", 2))
sketch21.addConstraint(Sketcher.Constraint("Horizontal", 3))
sketch21.addConstraint(Sketcher.Constraint("DistanceY", 0, 2, 0, 1, 0.25))
sketch21.addConstraint(Sketcher.Constraint("DistanceX", 1, 1, 1, 2, 0.445))
sketch21.addConstraint(Sketcher.Constraint("DistanceY", 0, 2, -1, 1, 3.935))
sketch21.addConstraint(Sketcher.Constraint("DistanceX", 0, 2, -1, 1, 1.4925))
pad7 = body.newObject("PartDesign::Pad", "Pad006")
pad7.Profile = sketch21
pad7.Length = 2.6

sketch22 = body.newObject("Sketcher::SketchObject", "Sketch021")
sketch22.AttachmentSupport = (doc.getObject("XY_Plane"), [""])
sketch22.MapMode = "FlatFace"
add_polygon(sketch22, [(1.05, -3.69), (1.05, -3.94), (1.49, -3.94), (1.49, -3.69)])
sketch22.addConstraint(Sketcher.Constraint("Vertical", 0))
sketch22.addConstraint(Sketcher.Constraint("Horizontal", 1))
sketch22.addConstraint(Sketcher.Constraint("Vertical", 2))
sketch22.addConstraint(Sketcher.Constraint("Horizontal", 3))
sketch22.addConstraint(Sketcher.Constraint("DistanceY", 0, 2, 0, 1, 0.25))
sketch22.addConstraint(Sketcher.Constraint("DistanceX", 1, 1, 1, 2, 0.445))
sketch22.addConstraint(Sketcher.Constraint("DistanceY", 0, 2, -1, 1, 3.935))
sketch22.addConstraint(Sketcher.Constraint("DistanceX", -1, 1, 0, 2, 1.0475))
pad8 = body.newObject("PartDesign::Pad", "Pad007")
pad8.Profile = sketch22
pad8.Length = 2.6

sketch23 = body.newObject("Sketcher::SketchObject", "Sketch022")
sketch23.AttachmentSupport = (doc.getObject("XY_Plane"), [""])
sketch23.MapMode = "FlatFace"
add_polygon(sketch23, [(3.59, -3.69), (3.59, -3.94), (4.03, -3.94), (4.03, -3.69)])
sketch23.addConstraint(Sketcher.Constraint("Vertical", 0))
sketch23.addConstraint(Sketcher.Constraint("Horizontal", 1))
sketch23.addConstraint(Sketcher.Constraint("Vertical", 2))
sketch23.addConstraint(Sketcher.Constraint("Horizontal", 3))
sketch23.addConstraint(Sketcher.Constraint("DistanceY", 0, 2, 0, 1, 0.25))
sketch23.addConstraint(Sketcher.Constraint("DistanceX", 1, 1, 1, 2, 0.445))
sketch23.addConstraint(Sketcher.Constraint("DistanceY", 0, 2, -1, 1, 3.935))
sketch23.addConstraint(Sketcher.Constraint("DistanceX", -1, 1, 0, 2, 3.5875))
pad9 = body.newObject("PartDesign::Pad", "Pad008")
pad9.Profile = sketch23
pad9.Length = 2.6

doc.recompute()
